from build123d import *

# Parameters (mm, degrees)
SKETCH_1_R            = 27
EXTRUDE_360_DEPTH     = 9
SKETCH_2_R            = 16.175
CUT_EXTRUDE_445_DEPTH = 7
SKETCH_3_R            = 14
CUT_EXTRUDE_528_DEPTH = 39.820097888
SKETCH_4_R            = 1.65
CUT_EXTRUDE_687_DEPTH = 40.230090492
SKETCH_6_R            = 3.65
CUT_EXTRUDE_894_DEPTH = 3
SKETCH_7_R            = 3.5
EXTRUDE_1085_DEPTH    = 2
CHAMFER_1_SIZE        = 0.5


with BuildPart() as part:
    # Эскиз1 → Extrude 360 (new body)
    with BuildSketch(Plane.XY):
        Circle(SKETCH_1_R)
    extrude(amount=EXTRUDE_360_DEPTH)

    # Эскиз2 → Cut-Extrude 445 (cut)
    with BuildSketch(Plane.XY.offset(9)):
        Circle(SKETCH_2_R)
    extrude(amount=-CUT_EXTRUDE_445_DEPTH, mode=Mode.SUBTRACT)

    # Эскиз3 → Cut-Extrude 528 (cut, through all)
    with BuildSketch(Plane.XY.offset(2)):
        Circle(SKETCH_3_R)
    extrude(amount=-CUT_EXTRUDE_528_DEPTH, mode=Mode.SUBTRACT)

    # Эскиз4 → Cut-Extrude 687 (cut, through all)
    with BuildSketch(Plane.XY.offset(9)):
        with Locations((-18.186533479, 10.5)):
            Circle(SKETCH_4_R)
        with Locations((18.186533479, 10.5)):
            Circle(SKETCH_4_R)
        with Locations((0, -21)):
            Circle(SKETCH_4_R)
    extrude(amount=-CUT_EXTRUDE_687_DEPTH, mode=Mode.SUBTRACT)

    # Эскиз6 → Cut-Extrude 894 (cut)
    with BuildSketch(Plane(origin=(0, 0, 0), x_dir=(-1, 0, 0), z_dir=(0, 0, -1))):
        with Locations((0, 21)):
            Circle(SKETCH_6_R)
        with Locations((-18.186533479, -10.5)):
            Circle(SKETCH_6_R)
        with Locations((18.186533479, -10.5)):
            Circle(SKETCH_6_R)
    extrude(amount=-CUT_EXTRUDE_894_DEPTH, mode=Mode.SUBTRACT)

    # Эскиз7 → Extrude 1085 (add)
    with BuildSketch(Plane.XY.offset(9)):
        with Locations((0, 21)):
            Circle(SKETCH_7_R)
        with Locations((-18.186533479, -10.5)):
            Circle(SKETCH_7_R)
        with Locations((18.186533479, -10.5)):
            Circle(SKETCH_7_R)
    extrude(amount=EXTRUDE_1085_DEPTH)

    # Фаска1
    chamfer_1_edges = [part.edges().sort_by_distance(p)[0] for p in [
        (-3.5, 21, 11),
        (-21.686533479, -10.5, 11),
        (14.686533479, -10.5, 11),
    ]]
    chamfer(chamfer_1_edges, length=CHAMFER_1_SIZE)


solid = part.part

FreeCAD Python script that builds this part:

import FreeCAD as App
import Part
import Sketcher
Q = App.Units.Quantity


def edges_at(feature, points):
    """Names of the edges that pass closest to the given points."""
    edges = feature.Shape.Edges
    near = lambda p: min(range(len(edges)), key=lambda i: edges[i].distToShape(Part.Vertex(*p))[0])
    return sorted({f"Edge{near(p) + 1}" for p in points})

doc = App.newDocument("Part")
params = doc.addObject("Spreadsheet::Sheet", "Params")
for row, (alias, value) in enumerate([
    ("sketch1_diameter", "54 mm"),
    ("pad1_length", "9 mm"),
    ("sketch2_diameter", "32.35 mm"),
    ("pocket1_length", "7 mm"),
    ("sketch3_diameter", "28 mm"),
    ("sketch4_diameter", "3.3 mm"),
    ("sketch5_diameter", "7.3 mm"),
    ("pocket4_length", "3 mm"),
    ("sketch6_diameter", "7 mm"),
    ("pad2_length", "2 mm"),
    ("chamfer_size", "0.5 mm"),
], start=1):
    params.set(f"A{row}", alias)
    params.set(f"B{row}", "=" + value)
    params.setAlias(f"B{row}", alias)

body = doc.addObject("PartDesign::Body", "Body")

# Sketch on XY plane
sketch1 = body.newObject("Sketcher::SketchObject", "Sketch")
sketch1.AttachmentSupport = (doc.getObject("XY_Plane"), [""])
sketch1.MapMode = "FlatFace"
sketch1.addGeometry(Part.Circle(App.Vector(0, 0, 0), App.Vector(0, 0, 1), 27), False)
sketch1.addConstraint(Sketcher.Constraint("Coincident", 0, 3, -1, 1))
sketch1.addConstraint(Sketcher.Constraint("Diameter", 0, Q("54 mm")))
sketch1.setExpression("Constraints[1]", "Params.sketch1_diameter")
pad1 = body.newObject("PartDesign::Pad", "Pad")
pad1.Profile = sketch1
pad1.setExpression("Length", "Params.pad1_length")

# Sketch on XY plane
sketch2 = body.newObject("Sketcher::SketchObject", "Sketch001")
sketch2.AttachmentSupport = (doc.getObject("XY_Plane"), [""])
sketch2.MapMode = "FlatFace"
sketch2.AttachmentOffset = App.Placement(App.Vector(0, 0, 9), App.Rotation())
sketch2.addGeometry(Part.Circle(App.Vector(0, 0, 0), App.Vector(0, 0, 1), 16), False)
sketch2.addConstraint(Sketcher.Constraint("Coincident", 0, 3, -1, 1))
sketch2.addConstraint(Sketcher.Constraint("Diameter", 0, Q("32.35 mm")))
sketch2.setExpression("Constraints[1]", "Params.sketch2_diameter")
pocket1 = body.newObject("PartDesign::Pocket", "Pocket")
pocket1.Profile = sketch2
pocket1.setExpression("Length", "Params.pocket1_length")

# Sketch on XY plane
sketch3 = body.newObject("Sketcher::SketchObject", "Sketch002")
sketch3.AttachmentSupport = (doc.getObject("XY_Plane"), [""])
sketch3.MapMode = "FlatFace"
sketch3.AttachmentOffset = App.Placement(App.Vector(0, 0, 2), App.Rotation())
sketch3.addGeometry(Part.Circle(App.Vector(0, 0, 0), App.Vector(0, 0, 1), 14), False)
sketch3.addConstraint(Sketcher.Constraint("Coincident", 0, 3, -1, 1))
sketch3.addConstraint(Sketcher.Constraint("Diameter", 0, Q("28 mm")))
sketch3.setExpression("Constraints[1]", "Params.sketch3_diameter")
pocket2 = body.newObject("PartDesign::Pocket", "Pocket001")
pocket2.Profile = sketch3
pocket2.Type = "ThroughAll"

# Sketch on XY plane
sketch4 = body.newObject("Sketcher::SketchObject", "Sketch003")
sketch4.AttachmentSupport = (doc.getObject("XY_Plane"), [""])
sketch4.MapMode = "FlatFace"
sketch4.AttachmentOffset = App.Placement(App.Vector(0, 0, 9), App.Rotation())
sketch4.addGeometry(Part.Circle(App.Vector(-18.2, 10.5, 0), App.Vector(0, 0, 1), 1.6), False)
sketch4.addGeometry(Part.Circle(App.Vector(18.2, 10.5, 0), App.Vector(0, 0, 1), 1.6), False)
sketch4.addGeometry(Part.Circle(App.Vector(0, -21, 0), App.Vector(0, 0, 1), 1.6), False)
sketch4.addConstraint(Sketcher.Constraint("Equal", 0, 1))
sketch4.addConstraint(Sketcher.Constraint("Equal", 1, 2))
sketch4.addConstraint(Sketcher.Constraint("Symmetric", 0, 3, 1, 3, -2))
sketch4.addConstraint(Sketcher.Constraint("PointOnObject", 2, 3, -2))
sketch4.addConstraint(Sketcher.Constraint("Diameter", 0, Q("3.3 mm")))
sketch4.addConstraint(Sketcher.Constraint("DistanceY", 2, 3, -1, 1, Q("21 mm")))
sketch4.addConstraint(Sketcher.Constraint("DistanceY", -1, 1, 0, 3, Q("10.5 mm")))
sketch4.addConstraint(Sketcher.Constraint("DistanceX", 0, 3, -1, 1, Q("18.186533 mm")))
sketch4.setExpression("Constraints[4]", "Params.sketch4_diameter")
pocket3 = body.newObject("PartDesign::Pocket", "Pocket002")
pocket3.Profile = sketch4
pocket3.Type = "ThroughAll"

# Sketch on XY plane
sketch5 = body.newObject("Sketcher::SketchObject", "Sketch004")
sketch5.AttachmentSupport = (doc.getObject("XY_Plane"), [""])
sketch5.MapMode = "FlatFace"
sketch5.addGeometry(Part.Circle(App.Vector(0, 21, 0), App.Vector(0, 0, 1), 3.6), False)
sketch5.addGeometry(Part.Circle(App.Vector(18.2, -10.5, 0), App.Vector(0, 0, 1), 3.6), False)
sketch5.addGeometry(Part.Circle(App.Vector(-18.2, -10.5, 0), App.Vector(0, 0, 1), 3.6), False)
sketch5.addConstraint(Sketcher.Constraint("Equal", 0, 1))
sketch5.addConstraint(Sketcher.Constraint("Equal", 1, 2))
sketch5.addConstraint(Sketcher.Constraint("Symmetric", 1, 3, 2, 3, -2))
sketch5.addConstraint(Sketcher.Constraint("PointOnObject", 0, 3, -2))
sketch5.addConstraint(Sketcher.Constraint("Diameter", 0, Q("7.3 mm")))
sketch5.addConstraint(Sketcher.Constraint("DistanceY", -1, 1, 0, 3, Q("21 mm")))
sketch5.addConstraint(Sketcher.Constraint("DistanceY", 1, 3, -1, 1, Q("10.5 mm")))
sketch5.addConstraint(Sketcher.Constraint("DistanceX", -1, 1, 1, 3, Q("18.186533 mm")))
sketch5.setExpression("Constraints[4]", "Params.sketch5_diameter")
pocket4 = body.newObject("PartDesign::Pocket", "Pocket003")
pocket4.Profile = sketch5
pocket4.setExpression("Length", "Params.pocket4_length")
pocket4.Reversed = True

# Sketch on XY plane
sketch6 = body.newObject("Sketcher::SketchObject", "Sketch005")
sketch6.AttachmentSupport = (doc.getObject("XY_Plane"), [""])
sketch6.MapMode = "FlatFace"
sketch6.AttachmentOffset = App.Placement(App.Vector(0, 0, 9), App.Rotation())
sketch6.addGeometry(Part.Circle(App.Vector(0, 21, 0), App.Vector(0, 0, 1), 3.5), False)
sketch6.addGeometry(Part.Circle(App.Vector(-18.2, -10.5, 0), App.Vector(0, 0, 1), 3.5), False)
sketch6.addGeometry(Part.Circle(App.Vector(18.2, -10.5, 0), App.Vector(0, 0, 1), 3.5), False)
sketch6.addConstraint(Sketcher.Constraint("Equal", 0, 1))
sketch6.addConstraint(Sketcher.Constraint("Equal", 1, 2))
sketch6.addConstraint(Sketcher.Constraint("Symmetric", 1, 3, 2, 3, -2))
sketch6.addConstraint(Sketcher.Constraint("PointOnObject", 0, 3, -2))
sketch6.addConstraint(Sketcher.Constraint("Diameter", 0, Q("7 mm")))
sketch6.addConstraint(Sketcher.Constraint("DistanceY", -1, 1, 0, 3, Q("21 mm")))
sketch6.addConstraint(Sketcher.Constraint("DistanceY", 1, 3, -1, 1, Q("10.5 mm")))
sketch6.addConstraint(Sketcher.Constraint("DistanceX", 1, 3, -1, 1, Q("18.186533 mm")))
sketch6.setExpression("Constraints[4]", "Params.sketch6_diameter")
pad2 = body.newObject("PartDesign::Pad", "Pad001")
pad2.Profile = sketch6
pad2.setExpression("Length", "Params.pad2_length")
doc.recompute()

chamfer = body.newObject("PartDesign::Chamfer", "Chamfer")
chamfer.Base = (pad2, edges_at(pad2, [(-3.5, 21, 11), (-21.687, -10.5, 11), (14.687, -10.5, 11)]))
chamfer.setExpression("Size", "Params.chamfer_size")

doc.recompute()
